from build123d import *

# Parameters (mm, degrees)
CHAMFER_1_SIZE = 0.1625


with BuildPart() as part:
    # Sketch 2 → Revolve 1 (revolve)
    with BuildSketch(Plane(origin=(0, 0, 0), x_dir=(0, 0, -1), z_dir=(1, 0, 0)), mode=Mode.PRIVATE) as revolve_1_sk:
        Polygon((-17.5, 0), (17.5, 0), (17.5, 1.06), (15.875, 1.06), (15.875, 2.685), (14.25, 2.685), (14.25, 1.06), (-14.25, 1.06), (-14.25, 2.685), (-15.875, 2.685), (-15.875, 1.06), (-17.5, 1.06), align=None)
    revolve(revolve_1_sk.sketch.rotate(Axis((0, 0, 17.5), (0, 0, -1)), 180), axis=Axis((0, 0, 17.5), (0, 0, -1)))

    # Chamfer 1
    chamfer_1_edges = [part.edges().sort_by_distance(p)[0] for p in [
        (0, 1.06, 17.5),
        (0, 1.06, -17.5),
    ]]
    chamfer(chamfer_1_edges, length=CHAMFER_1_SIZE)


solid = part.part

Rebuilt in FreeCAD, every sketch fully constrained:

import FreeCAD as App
import Part
import Sketcher

V = App.Vector


def edges_at(feature, points):
    """Names of the edges that pass closest to the given points."""
    edges = feature.Shape.Edges
    near = lambda p: min(range(len(edges)), key=lambda i: edges[i].distToShape(Part.Vertex(*p))[0])
    return sorted({f"Edge{near(p) + 1}" for p in points})


def add_polygon(sketch, points):
    """Adds a closed chain of lines whose ends are joined by coincident constraints."""
    first, n = sketch.GeometryCount, len(points)
    for a, b in zip(points, points[1:] + points[:1]):
        sketch.addGeometry(Part.LineSegment(App.Vector(*a, 0), App.Vector(*b, 0)), False)
    for i in range(n):
        sketch.addConstraint(Sketcher.Constraint("Coincident", first + i, 2, first + (i + 1) % n, 1))

doc = App.newDocument("Part")
params = doc.addObject("Spreadsheet::Sheet", "Params")
for row, (alias, value) in enumerate([
    ("sketch1_height", "35 mm"),
    ("sketch1_height2", "28.5 mm"),
    ("sketch1_width", "1.06 mm"),
    ("revolution_angle", "360 deg"),
    ("chamfer_size", "0.1625 mm"),
], start=1):
    params.set(f"A{row}", alias)
    params.set(f"B{row}", "=" + value)
    params.setAlias(f"B{row}", alias)

body = doc.addObject("PartDesign::Body", "Body")

# Sketch on YZ plane
sketch1 = body.newObject("Sketcher::SketchObject", "Sketch")
sketch1.AttachmentSupport = (doc.getObject("YZ_Plane"), [""])
sketch1.MapMode = "FlatFace"
add_polygon(sketch1, [(0, 17.5), (0, -17.5), (1.1, -17.5), (1.1, -15.9), (2.7, -15.9), (2.7, -14.2), (1.1, -14.2), (1.1, 14.2), (2.7, 14.2), (2.7, 15.9), (1.1, 15.9), (1.1, 17.5)])  # lines 0-11
sketch1.addConstraint([
    Sketcher.Constraint("Vertical", 0),
    Sketcher.Constraint("Horizontal", 1),
    Sketcher.Constraint("Vertical", 2),
    Sketcher.Constraint("Horizontal", 3),
    Sketcher.Constraint("Vertical", 4),
    Sketcher.Constraint("Horizontal", 5),
    Sketcher.Constraint("Vertical", 6),
    Sketcher.Constraint("Horizontal", 7),
    Sketcher.Constraint("Vertical", 8),
    Sketcher.Constraint("Horizontal", 9),
    Sketcher.Constraint("Vertical", 10),
    Sketcher.Constraint("Horizontal", 11),
    Sketcher.Constraint("Symmetric", 0, 2, 11, 2, -1, 1),
    Sketcher.Constraint("Symmetric", 4, 2, 7, 2, -1),
    Sketcher.Constraint("Symmetric", 2, 2, 9, 2, -1),
    Sketcher.Constraint("Vertical", 2, 2, 5, 2),
    Sketcher.Constraint("Equal", 9, 2),
    Sketcher.Constraint("Equal", 2, 4),
    Sketcher.Constraint("DistanceY", 0, 2, 0, 1, 35.0),
    Sketcher.Constraint("DistanceY", 6, 1, 6, 2, 28.5),
    Sketcher.Constraint("DistanceX", 1, 1, 1, 2, 1.06),
])
sketch1.setExpression("Constraints[30]", "Params.sketch1_height")
sketch1.setExpression("Constraints[31]", "Params.sketch1_height2")
sketch1.setExpression("Constraints[32]", "Params.sketch1_width")
revolution = body.newObject("PartDesign::Revolution", "Revolution")
revolution.Profile = sketch1
revolution.ReferenceAxis = (sketch1, ["V_Axis"])
revolution.setExpression("Angle", "Params.revolution_angle")
doc.recompute()

chamfer = body.newObject("PartDesign::Chamfer", "Chamfer")
chamfer.Base = (revolution, edges_at(revolution, [(0, 1.06, 17.5), (0, 1.06, -17.5)]))
chamfer.setExpression("Size", "Params.chamfer_size")

doc.recompute()
